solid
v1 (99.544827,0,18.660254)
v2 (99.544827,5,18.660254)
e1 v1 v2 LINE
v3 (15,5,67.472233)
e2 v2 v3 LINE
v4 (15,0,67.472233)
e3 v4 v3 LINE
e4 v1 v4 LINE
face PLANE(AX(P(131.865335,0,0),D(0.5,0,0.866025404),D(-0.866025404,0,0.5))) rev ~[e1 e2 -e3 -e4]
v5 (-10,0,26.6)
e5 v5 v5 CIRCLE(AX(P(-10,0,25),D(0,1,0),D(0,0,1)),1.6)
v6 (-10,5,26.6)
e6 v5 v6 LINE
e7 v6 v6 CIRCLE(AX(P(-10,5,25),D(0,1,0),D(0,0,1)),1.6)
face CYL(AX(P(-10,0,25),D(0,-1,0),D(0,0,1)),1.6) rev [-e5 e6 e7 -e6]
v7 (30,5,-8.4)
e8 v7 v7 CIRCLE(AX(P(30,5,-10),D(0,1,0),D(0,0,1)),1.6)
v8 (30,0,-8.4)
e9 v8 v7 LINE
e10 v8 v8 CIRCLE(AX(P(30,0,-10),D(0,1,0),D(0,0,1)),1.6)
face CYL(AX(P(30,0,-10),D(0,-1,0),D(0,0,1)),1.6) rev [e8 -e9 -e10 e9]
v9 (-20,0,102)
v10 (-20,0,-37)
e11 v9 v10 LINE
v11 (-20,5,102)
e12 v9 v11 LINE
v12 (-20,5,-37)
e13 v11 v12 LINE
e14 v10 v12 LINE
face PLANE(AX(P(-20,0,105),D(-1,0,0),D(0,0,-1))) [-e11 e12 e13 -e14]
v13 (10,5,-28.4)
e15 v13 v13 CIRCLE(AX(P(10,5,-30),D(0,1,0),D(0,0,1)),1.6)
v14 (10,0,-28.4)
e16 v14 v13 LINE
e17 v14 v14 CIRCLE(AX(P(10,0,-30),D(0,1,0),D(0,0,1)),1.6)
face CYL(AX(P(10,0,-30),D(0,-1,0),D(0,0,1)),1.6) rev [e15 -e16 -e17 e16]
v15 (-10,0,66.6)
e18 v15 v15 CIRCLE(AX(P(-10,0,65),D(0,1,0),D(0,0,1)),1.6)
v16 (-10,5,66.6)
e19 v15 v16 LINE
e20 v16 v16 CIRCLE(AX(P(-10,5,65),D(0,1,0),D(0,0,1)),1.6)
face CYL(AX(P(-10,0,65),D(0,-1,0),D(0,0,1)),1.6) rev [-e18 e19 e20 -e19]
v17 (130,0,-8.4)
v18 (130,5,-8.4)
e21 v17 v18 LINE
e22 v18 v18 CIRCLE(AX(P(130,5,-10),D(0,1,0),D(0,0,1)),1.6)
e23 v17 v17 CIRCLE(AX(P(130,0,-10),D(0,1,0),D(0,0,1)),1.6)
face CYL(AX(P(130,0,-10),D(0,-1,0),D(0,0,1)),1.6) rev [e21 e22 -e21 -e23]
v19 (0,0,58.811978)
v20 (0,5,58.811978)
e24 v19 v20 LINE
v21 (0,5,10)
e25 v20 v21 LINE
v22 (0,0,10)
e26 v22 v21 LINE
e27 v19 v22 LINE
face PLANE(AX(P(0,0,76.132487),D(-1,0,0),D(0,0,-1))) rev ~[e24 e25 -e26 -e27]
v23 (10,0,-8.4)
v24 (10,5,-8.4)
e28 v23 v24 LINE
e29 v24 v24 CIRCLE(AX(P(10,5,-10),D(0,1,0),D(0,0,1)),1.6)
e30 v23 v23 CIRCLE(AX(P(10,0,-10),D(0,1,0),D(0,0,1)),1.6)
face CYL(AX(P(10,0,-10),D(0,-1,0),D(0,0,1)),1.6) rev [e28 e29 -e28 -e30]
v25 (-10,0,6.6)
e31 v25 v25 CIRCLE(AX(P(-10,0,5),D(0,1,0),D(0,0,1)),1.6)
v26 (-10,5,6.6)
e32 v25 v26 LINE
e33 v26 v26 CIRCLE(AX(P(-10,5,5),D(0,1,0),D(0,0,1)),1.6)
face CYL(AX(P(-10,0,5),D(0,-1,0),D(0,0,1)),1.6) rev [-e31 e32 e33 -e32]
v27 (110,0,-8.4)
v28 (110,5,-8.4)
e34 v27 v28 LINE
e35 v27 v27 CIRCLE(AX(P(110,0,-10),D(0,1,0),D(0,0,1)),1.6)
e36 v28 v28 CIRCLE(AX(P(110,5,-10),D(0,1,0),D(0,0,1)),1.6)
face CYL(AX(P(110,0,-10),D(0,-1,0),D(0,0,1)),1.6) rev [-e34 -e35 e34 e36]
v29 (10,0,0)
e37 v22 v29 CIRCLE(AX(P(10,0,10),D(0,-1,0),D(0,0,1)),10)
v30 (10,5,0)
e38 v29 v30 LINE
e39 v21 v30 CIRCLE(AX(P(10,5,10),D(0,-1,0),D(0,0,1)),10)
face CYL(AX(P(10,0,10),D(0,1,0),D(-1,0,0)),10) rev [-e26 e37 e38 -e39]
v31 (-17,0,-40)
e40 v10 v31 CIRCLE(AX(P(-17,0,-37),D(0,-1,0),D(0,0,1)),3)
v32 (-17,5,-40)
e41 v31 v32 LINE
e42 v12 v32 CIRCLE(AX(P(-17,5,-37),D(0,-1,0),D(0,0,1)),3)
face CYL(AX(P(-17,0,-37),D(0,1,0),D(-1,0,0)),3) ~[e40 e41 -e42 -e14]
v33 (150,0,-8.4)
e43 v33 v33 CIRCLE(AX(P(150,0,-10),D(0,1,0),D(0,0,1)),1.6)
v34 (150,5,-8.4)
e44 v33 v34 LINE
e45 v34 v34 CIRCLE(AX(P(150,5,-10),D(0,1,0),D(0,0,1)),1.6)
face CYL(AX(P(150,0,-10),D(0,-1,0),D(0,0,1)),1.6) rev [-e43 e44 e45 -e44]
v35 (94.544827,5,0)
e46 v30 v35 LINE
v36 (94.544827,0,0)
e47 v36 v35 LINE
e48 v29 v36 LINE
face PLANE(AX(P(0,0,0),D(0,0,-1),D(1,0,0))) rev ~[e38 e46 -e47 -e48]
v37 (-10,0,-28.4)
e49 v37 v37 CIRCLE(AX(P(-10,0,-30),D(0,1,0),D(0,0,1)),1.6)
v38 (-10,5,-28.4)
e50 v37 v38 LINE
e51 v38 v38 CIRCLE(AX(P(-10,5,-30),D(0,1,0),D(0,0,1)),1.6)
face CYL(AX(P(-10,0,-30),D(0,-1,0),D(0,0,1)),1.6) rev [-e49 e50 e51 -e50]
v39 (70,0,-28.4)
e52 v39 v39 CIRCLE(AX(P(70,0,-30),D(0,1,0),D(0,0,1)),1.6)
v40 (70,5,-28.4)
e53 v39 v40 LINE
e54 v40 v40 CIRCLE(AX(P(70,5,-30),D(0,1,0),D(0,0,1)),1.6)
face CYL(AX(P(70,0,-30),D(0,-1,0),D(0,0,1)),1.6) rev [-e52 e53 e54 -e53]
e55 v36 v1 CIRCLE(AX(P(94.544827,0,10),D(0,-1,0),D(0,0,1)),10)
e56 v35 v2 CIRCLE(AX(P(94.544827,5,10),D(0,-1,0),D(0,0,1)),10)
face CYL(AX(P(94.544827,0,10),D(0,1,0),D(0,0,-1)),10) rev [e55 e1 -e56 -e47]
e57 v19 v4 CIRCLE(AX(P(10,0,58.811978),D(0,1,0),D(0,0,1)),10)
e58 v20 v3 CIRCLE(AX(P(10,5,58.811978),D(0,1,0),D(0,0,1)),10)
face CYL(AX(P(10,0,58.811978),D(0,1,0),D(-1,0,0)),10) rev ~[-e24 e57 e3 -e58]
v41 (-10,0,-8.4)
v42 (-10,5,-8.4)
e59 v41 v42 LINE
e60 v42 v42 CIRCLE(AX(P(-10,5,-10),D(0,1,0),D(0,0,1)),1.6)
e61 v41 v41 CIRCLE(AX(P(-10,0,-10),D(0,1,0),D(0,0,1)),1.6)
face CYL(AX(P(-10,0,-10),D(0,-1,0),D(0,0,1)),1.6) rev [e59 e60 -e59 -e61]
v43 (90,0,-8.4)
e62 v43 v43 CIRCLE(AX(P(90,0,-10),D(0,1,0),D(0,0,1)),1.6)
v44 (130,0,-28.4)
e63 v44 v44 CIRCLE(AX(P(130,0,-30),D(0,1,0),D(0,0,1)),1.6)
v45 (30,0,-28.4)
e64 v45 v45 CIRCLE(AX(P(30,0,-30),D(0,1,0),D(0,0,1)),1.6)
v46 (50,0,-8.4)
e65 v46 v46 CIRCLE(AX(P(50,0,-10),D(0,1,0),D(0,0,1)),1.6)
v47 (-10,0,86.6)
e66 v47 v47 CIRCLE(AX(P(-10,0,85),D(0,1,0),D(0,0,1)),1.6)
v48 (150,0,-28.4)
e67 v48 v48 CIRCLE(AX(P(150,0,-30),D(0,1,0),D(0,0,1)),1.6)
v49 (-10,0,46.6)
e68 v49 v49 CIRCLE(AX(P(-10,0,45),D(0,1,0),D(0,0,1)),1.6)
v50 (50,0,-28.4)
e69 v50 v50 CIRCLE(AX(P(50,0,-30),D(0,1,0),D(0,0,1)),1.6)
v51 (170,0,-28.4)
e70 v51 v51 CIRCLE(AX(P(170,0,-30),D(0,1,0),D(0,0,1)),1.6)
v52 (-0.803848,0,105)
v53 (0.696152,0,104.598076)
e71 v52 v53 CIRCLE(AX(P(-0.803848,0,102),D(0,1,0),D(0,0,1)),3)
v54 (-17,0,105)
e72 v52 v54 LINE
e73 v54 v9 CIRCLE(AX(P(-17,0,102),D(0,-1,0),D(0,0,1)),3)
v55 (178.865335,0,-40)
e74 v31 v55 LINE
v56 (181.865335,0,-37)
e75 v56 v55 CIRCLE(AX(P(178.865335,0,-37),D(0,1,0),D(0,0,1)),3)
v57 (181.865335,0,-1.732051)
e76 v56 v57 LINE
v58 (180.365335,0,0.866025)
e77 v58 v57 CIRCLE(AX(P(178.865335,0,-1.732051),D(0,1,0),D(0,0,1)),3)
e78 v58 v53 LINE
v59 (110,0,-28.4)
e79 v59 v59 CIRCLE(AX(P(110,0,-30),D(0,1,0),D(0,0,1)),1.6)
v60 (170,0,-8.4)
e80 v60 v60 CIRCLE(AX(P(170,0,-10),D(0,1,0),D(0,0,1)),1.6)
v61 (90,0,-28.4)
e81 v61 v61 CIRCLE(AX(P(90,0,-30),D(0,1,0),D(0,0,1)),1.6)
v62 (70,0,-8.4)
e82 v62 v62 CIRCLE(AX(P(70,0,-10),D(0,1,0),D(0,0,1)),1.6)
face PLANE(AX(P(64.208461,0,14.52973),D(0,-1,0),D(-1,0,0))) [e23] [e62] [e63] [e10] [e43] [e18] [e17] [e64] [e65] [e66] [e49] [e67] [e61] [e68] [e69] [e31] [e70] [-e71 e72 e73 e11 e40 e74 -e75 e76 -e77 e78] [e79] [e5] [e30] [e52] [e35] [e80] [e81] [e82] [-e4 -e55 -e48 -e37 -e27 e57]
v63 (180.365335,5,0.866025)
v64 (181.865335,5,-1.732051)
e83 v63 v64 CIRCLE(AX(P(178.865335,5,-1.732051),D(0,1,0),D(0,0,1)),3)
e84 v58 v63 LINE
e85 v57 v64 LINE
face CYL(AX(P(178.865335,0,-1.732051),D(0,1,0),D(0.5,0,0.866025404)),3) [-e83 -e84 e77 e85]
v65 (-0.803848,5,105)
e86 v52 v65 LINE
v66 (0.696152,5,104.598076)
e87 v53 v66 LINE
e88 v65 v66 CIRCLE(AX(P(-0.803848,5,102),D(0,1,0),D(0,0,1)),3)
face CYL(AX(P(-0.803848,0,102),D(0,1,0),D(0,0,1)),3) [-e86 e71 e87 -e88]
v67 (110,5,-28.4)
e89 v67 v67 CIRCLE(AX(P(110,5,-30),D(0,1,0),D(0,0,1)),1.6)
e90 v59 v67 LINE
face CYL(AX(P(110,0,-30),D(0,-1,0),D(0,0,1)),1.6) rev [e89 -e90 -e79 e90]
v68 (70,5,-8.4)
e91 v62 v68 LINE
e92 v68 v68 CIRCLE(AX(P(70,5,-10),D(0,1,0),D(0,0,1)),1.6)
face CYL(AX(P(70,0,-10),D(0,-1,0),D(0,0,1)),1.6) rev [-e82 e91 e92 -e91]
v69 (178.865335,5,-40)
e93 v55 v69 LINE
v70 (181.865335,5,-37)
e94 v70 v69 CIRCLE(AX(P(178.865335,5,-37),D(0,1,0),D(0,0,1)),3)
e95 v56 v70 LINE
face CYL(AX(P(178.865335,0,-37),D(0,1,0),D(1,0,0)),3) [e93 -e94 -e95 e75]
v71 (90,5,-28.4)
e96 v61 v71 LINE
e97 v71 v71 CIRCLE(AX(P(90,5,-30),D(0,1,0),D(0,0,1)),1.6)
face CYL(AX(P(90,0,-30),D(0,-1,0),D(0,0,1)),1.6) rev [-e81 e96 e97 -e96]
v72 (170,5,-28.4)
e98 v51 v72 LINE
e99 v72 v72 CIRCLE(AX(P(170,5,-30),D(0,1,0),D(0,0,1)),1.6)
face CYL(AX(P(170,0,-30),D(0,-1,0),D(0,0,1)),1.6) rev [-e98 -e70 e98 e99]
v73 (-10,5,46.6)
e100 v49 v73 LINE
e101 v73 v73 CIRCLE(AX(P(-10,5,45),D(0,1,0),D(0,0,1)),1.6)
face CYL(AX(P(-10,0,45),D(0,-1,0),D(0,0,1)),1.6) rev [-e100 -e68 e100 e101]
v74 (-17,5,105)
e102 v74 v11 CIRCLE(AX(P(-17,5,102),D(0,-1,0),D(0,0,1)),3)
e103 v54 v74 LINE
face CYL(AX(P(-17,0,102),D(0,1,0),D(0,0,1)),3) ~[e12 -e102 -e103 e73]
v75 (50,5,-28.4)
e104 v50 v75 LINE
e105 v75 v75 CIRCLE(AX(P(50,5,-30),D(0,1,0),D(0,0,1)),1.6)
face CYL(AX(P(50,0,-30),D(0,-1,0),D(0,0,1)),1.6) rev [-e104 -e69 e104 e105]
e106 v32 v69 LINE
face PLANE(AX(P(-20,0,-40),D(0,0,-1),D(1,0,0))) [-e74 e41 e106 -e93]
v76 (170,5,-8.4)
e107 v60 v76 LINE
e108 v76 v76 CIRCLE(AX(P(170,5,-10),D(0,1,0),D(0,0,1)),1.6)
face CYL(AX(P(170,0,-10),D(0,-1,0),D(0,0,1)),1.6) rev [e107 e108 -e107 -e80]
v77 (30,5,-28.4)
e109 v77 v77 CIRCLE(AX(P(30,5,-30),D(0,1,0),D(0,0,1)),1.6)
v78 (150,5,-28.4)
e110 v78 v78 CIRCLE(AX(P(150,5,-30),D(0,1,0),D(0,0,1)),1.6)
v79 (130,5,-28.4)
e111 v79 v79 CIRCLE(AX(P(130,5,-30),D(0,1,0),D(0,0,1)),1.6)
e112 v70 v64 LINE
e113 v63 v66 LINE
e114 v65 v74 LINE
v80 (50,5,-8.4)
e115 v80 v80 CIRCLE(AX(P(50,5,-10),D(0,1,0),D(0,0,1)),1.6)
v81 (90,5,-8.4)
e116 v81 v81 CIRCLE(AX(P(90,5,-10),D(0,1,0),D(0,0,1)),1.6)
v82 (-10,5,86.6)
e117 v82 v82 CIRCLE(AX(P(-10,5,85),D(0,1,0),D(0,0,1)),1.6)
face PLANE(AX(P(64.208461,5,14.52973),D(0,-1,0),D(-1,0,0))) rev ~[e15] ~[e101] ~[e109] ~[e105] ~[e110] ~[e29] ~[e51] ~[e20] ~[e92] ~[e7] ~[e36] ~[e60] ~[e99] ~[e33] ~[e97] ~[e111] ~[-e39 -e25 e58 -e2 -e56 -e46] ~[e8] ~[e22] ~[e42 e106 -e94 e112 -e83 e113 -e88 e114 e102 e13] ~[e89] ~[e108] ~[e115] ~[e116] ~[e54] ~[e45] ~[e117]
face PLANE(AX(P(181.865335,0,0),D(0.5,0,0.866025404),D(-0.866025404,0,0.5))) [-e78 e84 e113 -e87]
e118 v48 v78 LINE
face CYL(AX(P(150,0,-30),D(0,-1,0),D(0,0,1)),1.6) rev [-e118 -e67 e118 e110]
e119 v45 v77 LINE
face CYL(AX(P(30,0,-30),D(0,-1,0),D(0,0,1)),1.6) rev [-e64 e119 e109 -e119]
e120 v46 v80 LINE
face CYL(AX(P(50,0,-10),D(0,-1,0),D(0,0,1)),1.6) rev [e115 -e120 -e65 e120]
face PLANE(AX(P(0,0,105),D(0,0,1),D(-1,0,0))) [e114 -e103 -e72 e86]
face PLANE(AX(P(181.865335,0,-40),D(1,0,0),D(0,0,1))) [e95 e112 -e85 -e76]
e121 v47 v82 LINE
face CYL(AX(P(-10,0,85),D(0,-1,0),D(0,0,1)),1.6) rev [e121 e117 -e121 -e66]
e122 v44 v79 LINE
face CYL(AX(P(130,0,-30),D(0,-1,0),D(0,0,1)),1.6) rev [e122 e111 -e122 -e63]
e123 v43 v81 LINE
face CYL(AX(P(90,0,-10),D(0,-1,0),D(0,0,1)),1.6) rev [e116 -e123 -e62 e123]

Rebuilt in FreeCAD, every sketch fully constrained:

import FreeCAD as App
import Part
import Sketcher
from FreeCAD import Vector
Q = App.Units.Quantity


def edges_at(feature, points):
    """Names of the edges that pass closest to the given points."""
    edges = feature.Shape.Edges
    near = lambda p: min(range(len(edges)), key=lambda i: edges[i].distToShape(Part.Vertex(*p))[0])
    return sorted({f"Edge{near(p) + 1}" for p in points})

doc = App.newDocument("Part")
body = doc.addObject("PartDesign::Body", "Body")

# Sketch on XZ plane
sketch1 = body.newObject("Sketcher::SketchObject", "Sketch")
sketch1.AttachmentSupport = (doc.getObject("XZ_Plane"), [""])
sketch1.MapMode = "FlatFace"
sketch1.addGeometry([
    Part.LineSegment(Vector(-20, 105, 0), Vector(0, 105, 0)),  # 0
    Part.LineSegment(Vector(0, 105, 0), Vector(181.9, 0, 0)),  # 1
    Part.LineSegment(Vector(181.9, 0, 0), Vector(181.9, -40, 0)),  # 2
    Part.LineSegment(Vector(181.9, -40, 0), Vector(-20, -40, 0)),  # 3
    Part.LineSegment(Vector(-20, -40, 0), Vector(-20, 105, 0)),  # 4
    Part.Circle(Vector(-10, 85, 0), Vector(0, 0, 1), 1.6),  # 5
    Part.Circle(Vector(-10, 65, 0), Vector(0, 0, 1), 1.6),  # 6
    Part.LineSegment(Vector(0, 76.1, 0), Vector(0, 0, 0)),  # 7
    Part.LineSegment(Vector(0, 0, 0), Vector(131.9, 0, 0)),  # 8
    Part.LineSegment(Vector(131.9, 0, 0), Vector(0, 76.1, 0)),  # 9
    Part.Circle(Vector(-10, 45, 0), Vector(0, 0, 1), 1.6),  # 10
    Part.Circle(Vector(170, -10, 0), Vector(0, 0, 1), 1.6),  # 11
    Part.Circle(Vector(150, -10, 0), Vector(0, 0, 1), 1.6),  # 12
    Part.Circle(Vector(130, -10, 0), Vector(0, 0, 1), 1.6),  # 13
    Part.Circle(Vector(170, -30, 0), Vector(0, 0, 1), 1.6),  # 14
    Part.Circle(Vector(150, -30, 0), Vector(0, 0, 1), 1.6),  # 15
    Part.Circle(Vector(130, -30, 0), Vector(0, 0, 1), 1.6),  # 16
    Part.Circle(Vector(110, -10, 0), Vector(0, 0, 1), 1.6),  # 17
    Part.Circle(Vector(90, -10, 0), Vector(0, 0, 1), 1.6),  # 18
    Part.Circle(Vector(110, -30, 0), Vector(0, 0, 1), 1.6),  # 19
    Part.Circle(Vector(90, -30, 0), Vector(0, 0, 1), 1.6),  # 20
    Part.Circle(Vector(-10, 25, 0), Vector(0, 0, 1), 1.6),  # 21
    Part.Circle(Vector(-10, 5, 0), Vector(0, 0, 1), 1.6),  # 22
    Part.Circle(Vector(70, -10, 0), Vector(0, 0, 1), 1.6),  # 23
    Part.Circle(Vector(50, -10, 0), Vector(0, 0, 1), 1.6),  # 24
    Part.Circle(Vector(70, -30, 0), Vector(0, 0, 1), 1.6),  # 25
    Part.Circle(Vector(50, -30, 0), Vector(0, 0, 1), 1.6),  # 26
    Part.Circle(Vector(30, -10, 0), Vector(0, 0, 1), 1.6),  # 27
    Part.Circle(Vector(10, -10, 0), Vector(0, 0, 1), 1.6),  # 28
    Part.Circle(Vector(-10, -10, 0), Vector(0, 0, 1), 1.6),  # 29
    Part.Circle(Vector(30, -30, 0), Vector(0, 0, 1), 1.6),  # 30
    Part.Circle(Vector(10, -30, 0), Vector(0, 0, 1), 1.6),  # 31
    Part.Circle(Vector(-10, -30, 0), Vector(0, 0, 1), 1.6),  # 32
], False)
sketch1.addConstraint([
    Sketcher.Constraint("Coincident", 0, 2, 1, 1),
    Sketcher.Constraint("Coincident", 1, 2, 2, 1),
    Sketcher.Constraint("Coincident", 2, 2, 3, 1),
    Sketcher.Constraint("Coincident", 3, 2, 4, 1),
    Sketcher.Constraint("Coincident", 4, 2, 0, 1),
    Sketcher.Constraint("Coincident", 7, 2, 8, 1),
    Sketcher.Constraint("Coincident", 8, 2, 9, 1),
    Sketcher.Constraint("Coincident", 9, 2, 7, 1),
    Sketcher.Constraint("Horizontal", 0),
    Sketcher.Constraint("Vertical", 2),
    Sketcher.Constraint("Horizontal", 3),
    Sketcher.Constraint("Vertical", 4),
    Sketcher.Constraint("Vertical", 7),
    Sketcher.Constraint("Horizontal", 8),
    Sketcher.Constraint("Coincident", 7, 2, -1, 1),
    Sketcher.Constraint("Equal", 5, 6),
    Sketcher.Constraint("Equal", 6, 10),
    Sketcher.Constraint("Equal", 10, 11),
    Sketcher.Constraint("Equal", 11, 12),
    Sketcher.Constraint("Equal", 12, 13),
    Sketcher.Constraint("Equal", 13, 14),
    Sketcher.Constraint("Equal", 14, 15),
    Sketcher.Constraint("Equal", 15, 16),
    Sketcher.Constraint("Equal", 16, 17),
    Sketcher.Constraint("Equal", 17, 18),
    Sketcher.Constraint("Equal", 18, 19),
    Sketcher.Constraint("Equal", 19, 20),
    Sketcher.Constraint("Equal", 20, 21),
    Sketcher.Constraint("Equal", 21, 22),
    Sketcher.Constraint("Equal", 22, 23),
    Sketcher.Constraint("Equal", 23, 24),
    Sketcher.Constraint("Equal", 24, 25),
    Sketcher.Constraint("Equal", 25, 26),
    Sketcher.Constraint("Equal", 26, 27),
    Sketcher.Constraint("Equal", 27, 28),
    Sketcher.Constraint("Equal", 28, 29),
    Sketcher.Constraint("Equal", 29, 30),
    Sketcher.Constraint("Equal", 30, 31),
    Sketcher.Constraint("Equal", 31, 32),
    Sketcher.Constraint("Symmetric", 28, 3, 29, 3, -2),
    Sketcher.Constraint("Symmetric", 31, 3, 32, 3, -2),
    Sketcher.Constraint("PointOnObject", 0, 2, -2),
    Sketcher.Constraint("PointOnObject", 1, 2, -1),
    Sketcher.Constraint("Parallel", 1, 9),
    Sketcher.Constraint("Horizontal", 11, 3, 12, 3),
    Sketcher.Constraint("Horizontal", 12, 3, 13, 3),
    Sketcher.Constraint("Horizontal", 14, 3, 15, 3),
    Sketcher.Constraint("Horizontal", 15, 3, 16, 3),
    Sketcher.Constraint("Horizontal", 13, 3, 17, 3),
    Sketcher.Constraint("Horizontal", 17, 3, 18, 3),
    Sketcher.Constraint("Horizontal", 16, 3, 19, 3),
    Sketcher.Constraint("Horizontal", 19, 3, 20, 3),
    Sketcher.Constraint("Horizontal", 18, 3, 23, 3),
    Sketcher.Constraint("Horizontal", 23, 3, 24, 3),
    Sketcher.Constraint("Horizontal", 20, 3, 25, 3),
    Sketcher.Constraint("Horizontal", 25, 3, 26, 3),
    Sketcher.Constraint("Horizontal", 24, 3, 27, 3),
    Sketcher.Constraint("Horizontal", 27, 3, 28, 3),
    Sketcher.Constraint("Horizontal", 26, 3, 30, 3),
    Sketcher.Constraint("Horizontal", 30, 3, 31, 3),
    Sketcher.Constraint("Vertical", 5, 3, 6, 3),
    Sketcher.Constraint("Vertical", 6, 3, 10, 3),
    Sketcher.Constraint("Vertical", 11, 3, 14, 3),
    Sketcher.Constraint("Vertical", 12, 3, 15, 3),
    Sketcher.Constraint("Vertical", 13, 3, 16, 3),
    Sketcher.Constraint("Vertical", 17, 3, 19, 3),
    Sketcher.Constraint("Vertical", 18, 3, 20, 3),
    Sketcher.Constraint("Vertical", 10, 3, 21, 3),
    Sketcher.Constraint("Vertical", 21, 3, 22, 3),
    Sketcher.Constraint("Vertical", 23, 3, 25, 3),
    Sketcher.Constraint("Vertical", 24, 3, 26, 3),
    Sketcher.Constraint("Vertical", 22, 3, 29, 3),
    Sketcher.Constraint("Vertical", 27, 3, 30, 3),
    Sketcher.Constraint("Vertical", 28, 3, 31, 3),
    Sketcher.Constraint("Diameter", 5, 3.2),
    Sketcher.Constraint("DistanceX", 0, 1, 0, 2, 20.0),
    Sketcher.Constraint("DistanceY", 2, 2, 2, 1, 40.0),
    Sketcher.Constraint("DistanceY", 4, 1, 4, 2, 145.0),
    Sketcher.Constraint("Angle", 1, Q("-30 deg")),
    Sketcher.Constraint("DistanceX", 5, 3, -1, 1, 10.0),
    Sketcher.Constraint("DistanceY", -1, 1, 5, 3, 85.0),
    Sketcher.Constraint("DistanceY", -1, 1, 6, 3, 65.0),
    Sketcher.Constraint("DistanceY", -1, 1, 10, 3, 45.0),
    Sketcher.Constraint("DistanceX", -1, 1, 11, 3, 170.0),
    Sketcher.Constraint("DistanceY", 11, 3, -1, 1, 10.0),
    Sketcher.Constraint("DistanceX", -1, 1, 12, 3, 150.0),
    Sketcher.Constraint("DistanceX", -1, 1, 13, 3, 130.0),
    Sketcher.Constraint("DistanceY", 14, 3, -1, 1, 30.0),
    Sketcher.Constraint("DistanceX", -1, 1, 17, 3, 110.0),
    Sketcher.Constraint("DistanceX", -1, 1, 18, 3, 90.0),
    Sketcher.Constraint("DistanceY", -1, 1, 21, 3, 25.0),
    Sketcher.Constraint("DistanceY", -1, 1, 22, 3, 5.0),
    Sketcher.Constraint("DistanceX", -1, 1, 23, 3, 70.0),
    Sketcher.Constraint("DistanceX", -1, 1, 24, 3, 50.0),
    Sketcher.Constraint("DistanceX", -1, 1, 27, 3, 30.0),
    Sketcher.Constraint("DistanceX", 8, 1, 8, 2, 131.865335),
])
pad1 = body.newObject("PartDesign::Pad", "Pad")
pad1.Profile = sketch1
pad1.Length = 5
pad1.Reversed = True
doc.recompute()

fillet = body.newObject("PartDesign::Fillet", "Fillet")
fillet.Base = (pad1, edges_at(pad1, [(0, 2.5, 0), (0, 2.5, 76.132), (131.865, 2.5, 0)]))
fillet.Radius = 10
doc.recompute()

fillet2 = body.newObject("PartDesign::Fillet", "Fillet001")
fillet2.Base = (fillet, edges_at(fillet, [
    (-20, 2.5, 105),
    (-20, 2.5, -40),
    (181.865, 2.5, -40),
    (181.865, 2.5, 0),
    (0, 2.5, 105),
]))
fillet2.Radius = 3

doc.recompute()
